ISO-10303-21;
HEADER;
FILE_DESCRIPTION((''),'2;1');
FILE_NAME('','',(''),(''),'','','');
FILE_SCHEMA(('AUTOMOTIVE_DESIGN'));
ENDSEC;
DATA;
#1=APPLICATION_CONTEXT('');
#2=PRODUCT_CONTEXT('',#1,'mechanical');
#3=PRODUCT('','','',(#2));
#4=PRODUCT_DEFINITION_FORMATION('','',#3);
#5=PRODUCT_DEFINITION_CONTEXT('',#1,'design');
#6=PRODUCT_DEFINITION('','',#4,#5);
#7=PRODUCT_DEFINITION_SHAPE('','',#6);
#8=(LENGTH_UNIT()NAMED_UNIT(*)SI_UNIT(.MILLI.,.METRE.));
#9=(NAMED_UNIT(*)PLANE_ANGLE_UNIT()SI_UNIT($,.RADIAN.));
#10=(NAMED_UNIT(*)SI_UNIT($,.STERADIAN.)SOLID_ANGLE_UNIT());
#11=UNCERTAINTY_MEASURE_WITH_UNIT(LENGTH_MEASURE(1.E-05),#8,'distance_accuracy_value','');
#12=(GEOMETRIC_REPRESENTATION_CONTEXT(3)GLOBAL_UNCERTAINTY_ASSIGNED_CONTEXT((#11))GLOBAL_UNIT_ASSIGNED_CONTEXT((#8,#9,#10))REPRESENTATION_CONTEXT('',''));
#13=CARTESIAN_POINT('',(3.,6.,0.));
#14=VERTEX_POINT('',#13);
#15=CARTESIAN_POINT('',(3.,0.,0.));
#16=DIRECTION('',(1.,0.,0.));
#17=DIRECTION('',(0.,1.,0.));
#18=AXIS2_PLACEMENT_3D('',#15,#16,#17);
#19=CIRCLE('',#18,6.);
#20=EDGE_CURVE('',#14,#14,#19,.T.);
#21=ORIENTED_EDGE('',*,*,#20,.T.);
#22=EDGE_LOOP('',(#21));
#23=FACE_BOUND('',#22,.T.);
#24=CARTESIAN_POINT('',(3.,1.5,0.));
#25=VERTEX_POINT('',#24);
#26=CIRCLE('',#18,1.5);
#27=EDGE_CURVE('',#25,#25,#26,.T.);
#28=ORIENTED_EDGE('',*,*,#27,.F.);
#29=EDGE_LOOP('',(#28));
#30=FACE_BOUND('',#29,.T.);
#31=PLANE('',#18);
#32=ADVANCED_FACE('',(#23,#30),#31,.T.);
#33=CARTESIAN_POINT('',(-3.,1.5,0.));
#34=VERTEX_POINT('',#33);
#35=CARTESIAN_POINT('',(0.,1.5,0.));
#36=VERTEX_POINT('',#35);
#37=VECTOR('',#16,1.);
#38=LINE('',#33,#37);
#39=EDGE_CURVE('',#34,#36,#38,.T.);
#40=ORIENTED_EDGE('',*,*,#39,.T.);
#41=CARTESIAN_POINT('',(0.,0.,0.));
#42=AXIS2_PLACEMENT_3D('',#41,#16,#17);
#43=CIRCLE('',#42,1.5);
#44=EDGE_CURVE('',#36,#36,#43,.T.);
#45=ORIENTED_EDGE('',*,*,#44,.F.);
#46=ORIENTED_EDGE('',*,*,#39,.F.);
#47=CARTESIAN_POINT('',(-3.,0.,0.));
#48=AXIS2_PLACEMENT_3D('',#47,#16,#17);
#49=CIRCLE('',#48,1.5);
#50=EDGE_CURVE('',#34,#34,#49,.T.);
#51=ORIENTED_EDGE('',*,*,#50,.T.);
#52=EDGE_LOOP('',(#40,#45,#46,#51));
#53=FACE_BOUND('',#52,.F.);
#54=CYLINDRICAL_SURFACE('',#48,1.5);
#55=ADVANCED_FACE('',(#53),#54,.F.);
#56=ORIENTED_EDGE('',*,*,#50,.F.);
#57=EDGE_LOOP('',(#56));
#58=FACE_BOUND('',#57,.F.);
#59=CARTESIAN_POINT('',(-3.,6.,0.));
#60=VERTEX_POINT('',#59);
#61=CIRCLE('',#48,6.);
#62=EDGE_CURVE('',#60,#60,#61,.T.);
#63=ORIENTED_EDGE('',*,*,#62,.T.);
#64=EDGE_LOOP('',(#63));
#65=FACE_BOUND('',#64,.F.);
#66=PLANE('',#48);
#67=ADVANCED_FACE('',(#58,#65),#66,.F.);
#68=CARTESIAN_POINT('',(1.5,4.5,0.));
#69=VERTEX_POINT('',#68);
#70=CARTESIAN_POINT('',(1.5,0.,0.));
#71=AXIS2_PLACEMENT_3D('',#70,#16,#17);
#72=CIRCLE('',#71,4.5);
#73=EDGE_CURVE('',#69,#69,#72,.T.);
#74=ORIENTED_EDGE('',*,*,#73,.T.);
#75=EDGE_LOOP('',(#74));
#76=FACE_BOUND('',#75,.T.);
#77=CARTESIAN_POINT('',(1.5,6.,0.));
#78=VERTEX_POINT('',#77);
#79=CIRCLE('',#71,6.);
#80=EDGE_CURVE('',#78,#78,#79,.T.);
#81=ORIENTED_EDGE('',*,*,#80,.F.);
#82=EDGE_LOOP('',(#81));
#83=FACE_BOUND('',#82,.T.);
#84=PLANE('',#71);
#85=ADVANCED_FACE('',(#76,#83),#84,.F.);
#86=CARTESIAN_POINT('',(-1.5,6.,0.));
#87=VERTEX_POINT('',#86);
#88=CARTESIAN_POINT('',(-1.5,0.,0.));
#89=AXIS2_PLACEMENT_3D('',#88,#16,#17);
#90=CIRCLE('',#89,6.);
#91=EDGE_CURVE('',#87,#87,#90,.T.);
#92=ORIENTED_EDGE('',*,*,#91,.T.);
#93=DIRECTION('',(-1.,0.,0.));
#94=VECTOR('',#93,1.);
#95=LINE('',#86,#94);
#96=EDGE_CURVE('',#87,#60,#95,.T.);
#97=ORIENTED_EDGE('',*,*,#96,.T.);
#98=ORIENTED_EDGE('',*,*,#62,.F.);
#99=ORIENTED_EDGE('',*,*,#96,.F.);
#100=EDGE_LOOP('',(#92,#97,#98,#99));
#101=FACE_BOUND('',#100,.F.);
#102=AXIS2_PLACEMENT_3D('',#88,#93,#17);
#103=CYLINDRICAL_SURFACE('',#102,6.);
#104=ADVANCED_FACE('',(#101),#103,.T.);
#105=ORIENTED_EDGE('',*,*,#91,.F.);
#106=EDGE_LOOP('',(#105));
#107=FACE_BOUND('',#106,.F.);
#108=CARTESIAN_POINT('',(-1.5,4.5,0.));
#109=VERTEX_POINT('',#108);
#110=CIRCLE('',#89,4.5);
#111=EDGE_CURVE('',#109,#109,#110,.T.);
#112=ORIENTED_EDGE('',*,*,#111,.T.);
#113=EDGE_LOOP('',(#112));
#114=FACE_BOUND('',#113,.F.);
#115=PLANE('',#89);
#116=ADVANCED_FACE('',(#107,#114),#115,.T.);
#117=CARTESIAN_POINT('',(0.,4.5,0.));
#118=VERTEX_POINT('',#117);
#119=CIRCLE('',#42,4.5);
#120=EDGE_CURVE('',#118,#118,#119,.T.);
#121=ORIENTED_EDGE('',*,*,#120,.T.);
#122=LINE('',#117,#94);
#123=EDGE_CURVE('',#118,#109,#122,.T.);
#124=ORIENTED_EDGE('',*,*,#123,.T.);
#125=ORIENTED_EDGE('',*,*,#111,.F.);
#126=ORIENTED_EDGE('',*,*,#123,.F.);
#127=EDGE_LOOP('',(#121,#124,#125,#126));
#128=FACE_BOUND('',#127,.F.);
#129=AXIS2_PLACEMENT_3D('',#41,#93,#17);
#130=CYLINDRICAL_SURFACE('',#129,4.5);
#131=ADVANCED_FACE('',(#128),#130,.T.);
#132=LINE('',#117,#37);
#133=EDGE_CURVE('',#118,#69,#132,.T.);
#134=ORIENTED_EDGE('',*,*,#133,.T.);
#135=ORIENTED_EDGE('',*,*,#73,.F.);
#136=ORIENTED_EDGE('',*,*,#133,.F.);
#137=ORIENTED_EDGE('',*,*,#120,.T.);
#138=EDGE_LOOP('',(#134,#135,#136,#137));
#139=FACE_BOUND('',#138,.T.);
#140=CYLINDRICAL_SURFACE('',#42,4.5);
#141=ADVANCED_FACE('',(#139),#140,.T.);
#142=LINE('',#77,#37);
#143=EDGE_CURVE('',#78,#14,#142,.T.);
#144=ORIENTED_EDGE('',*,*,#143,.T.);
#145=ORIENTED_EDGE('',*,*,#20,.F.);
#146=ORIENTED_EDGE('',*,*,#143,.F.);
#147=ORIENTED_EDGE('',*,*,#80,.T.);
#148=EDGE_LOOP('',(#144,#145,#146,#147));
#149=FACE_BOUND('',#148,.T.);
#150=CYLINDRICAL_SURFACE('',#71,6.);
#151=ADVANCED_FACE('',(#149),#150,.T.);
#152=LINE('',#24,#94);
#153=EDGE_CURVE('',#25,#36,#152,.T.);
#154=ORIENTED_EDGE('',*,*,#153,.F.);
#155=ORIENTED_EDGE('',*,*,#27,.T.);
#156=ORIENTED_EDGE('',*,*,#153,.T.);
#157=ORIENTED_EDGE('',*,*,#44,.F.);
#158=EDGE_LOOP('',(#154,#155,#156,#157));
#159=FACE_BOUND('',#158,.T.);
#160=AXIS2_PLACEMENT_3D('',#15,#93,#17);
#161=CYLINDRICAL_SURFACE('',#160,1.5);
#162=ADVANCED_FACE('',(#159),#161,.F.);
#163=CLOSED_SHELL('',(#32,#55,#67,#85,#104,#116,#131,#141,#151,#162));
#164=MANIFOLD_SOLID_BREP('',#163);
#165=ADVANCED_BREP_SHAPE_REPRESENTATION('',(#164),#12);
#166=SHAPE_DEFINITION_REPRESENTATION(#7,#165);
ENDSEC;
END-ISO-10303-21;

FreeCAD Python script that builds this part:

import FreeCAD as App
import Part
import Sketcher

V = App.Vector


def add_polygon(sketch, points):
    """Adds a closed chain of lines whose ends are joined by coincident constraints."""
    first, n = sketch.GeometryCount, len(points)
    for a, b in zip(points, points[1:] + points[:1]):
        sketch.addGeometry(Part.LineSegment(App.Vector(*a, 0), App.Vector(*b, 0)), False)
    for i in range(n):
        sketch.addConstraint(Sketcher.Constraint("Coincident", first + i, 2, first + (i + 1) % n, 1))

doc = App.newDocument("Part")
body = doc.addObject("PartDesign::Body", "Body")

# Sketch on XY plane
sketch1 = body.newObject("Sketcher::SketchObject", "Sketch")
sketch1.AttachmentSupport = (doc.getObject("XY_Plane"), [""])
sketch1.MapMode = "FlatFace"
add_polygon(sketch1, [(1.5, 4.5), (-1.5, 4.5), (-1.5, 6), (-3, 6), (-3, 1.5), (3, 1.5), (3, 6), (1.5, 6)])  # lines 0-7
sketch1.addConstraint(Sketcher.Constraint("Horizontal", 0))
sketch1.addConstraint(Sketcher.Constraint("Vertical", 1))
sketch1.addConstraint(Sketcher.Constraint("Horizontal", 2))
sketch1.addConstraint(Sketcher.Constraint("Vertical", 3))
sketch1.addConstraint(Sketcher.Constraint("Horizontal", 4))
sketch1.addConstraint(Sketcher.Constraint("Vertical", 5))
sketch1.addConstraint(Sketcher.Constraint("Horizontal", 6))
sketch1.addConstraint(Sketcher.Constraint("Vertical", 7))
sketch1.addConstraint(Sketcher.Constraint("Symmetric", 2, 2, 5, 2, -2))
sketch1.addConstraint(Sketcher.Constraint("Equal", 2, 6))
sketch1.addConstraint(Sketcher.Constraint("Equal", 6, 1))
sketch1.addConstraint(Sketcher.Constraint("DistanceX", 2, 2, 2, 1, 1.5))
sketch1.addConstraint(Sketcher.Constraint("DistanceY", 3, 2, 3, 1, 4.5))
sketch1.addConstraint(Sketcher.Constraint("DistanceX", 0, 2, -1, 1, 1.5))
sketch1.addConstraint(Sketcher.Constraint("DistanceY", -1, 1, 0, 2, 4.5))
revolution = body.newObject("PartDesign::Revolution", "Revolution")
revolution.Profile = sketch1
revolution.ReferenceAxis = (sketch1, ["H_Axis"])
revolution.Angle = 360

doc.recompute()
